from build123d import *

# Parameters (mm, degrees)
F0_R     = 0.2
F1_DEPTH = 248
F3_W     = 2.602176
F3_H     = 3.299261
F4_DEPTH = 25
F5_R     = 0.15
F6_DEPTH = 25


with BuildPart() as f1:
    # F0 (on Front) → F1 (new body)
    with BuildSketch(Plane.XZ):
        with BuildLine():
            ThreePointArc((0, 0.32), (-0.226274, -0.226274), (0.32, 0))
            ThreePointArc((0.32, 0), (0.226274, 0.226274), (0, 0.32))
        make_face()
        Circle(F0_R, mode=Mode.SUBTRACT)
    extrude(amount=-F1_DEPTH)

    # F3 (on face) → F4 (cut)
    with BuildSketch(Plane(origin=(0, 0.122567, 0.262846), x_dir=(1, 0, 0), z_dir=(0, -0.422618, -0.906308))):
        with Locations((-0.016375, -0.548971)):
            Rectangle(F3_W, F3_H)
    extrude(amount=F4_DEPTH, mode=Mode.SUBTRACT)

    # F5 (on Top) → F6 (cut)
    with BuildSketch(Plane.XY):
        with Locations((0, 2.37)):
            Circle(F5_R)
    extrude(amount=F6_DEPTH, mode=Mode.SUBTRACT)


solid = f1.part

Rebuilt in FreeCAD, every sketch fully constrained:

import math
import FreeCAD as App
import Part
import Sketcher

V = App.Vector
Q = App.Units.Quantity


def add_polygon(sketch, points):
    """Adds a closed chain of lines whose ends are joined by coincident constraints."""
    first, n = sketch.GeometryCount, len(points)
    for a, b in zip(points, points[1:] + points[:1]):
        sketch.addGeometry(Part.LineSegment(App.Vector(*a, 0), App.Vector(*b, 0)), False)
    for i in range(n):
        sketch.addConstraint(Sketcher.Constraint("Coincident", first + i, 2, first + (i + 1) % n, 1))

doc = App.newDocument("Part")
body = doc.addObject("PartDesign::Body", "Body")

# Sketch on XZ plane
sketch1 = doc.addObject("Sketcher::SketchObject", "Sketch")
body.addObject(sketch1)
sketch1.AttachmentSupport = (doc.XZ_Plane, [""])
sketch1.MapMode = "FlatFace"
sketch1.addGeometry([
    Part.ArcOfCircle(Part.Circle(V(0, 0, 0), V(0, 0, 1), 0.32), math.radians(90.000018), math.radians(359.999982)),
    Part.ArcOfCircle(Part.Circle(V(-0.000001, -0.000001, 0), V(0, 0, 1), 0.320001), math.radians(0.000104), math.radians(89.999896)),
    Part.Circle(V(0, 0, 0), V(0, 0, 1), 0.2),
], False)
sketch1.addConstraint([
    Sketcher.Constraint("Coincident", 0, 1, 1, 2),
    Sketcher.Constraint("Coincident", 1, 1, 0, 2),
    Sketcher.Constraint("Coincident", 0, 3, -1, 1),
    Sketcher.Constraint("Coincident", 2, 3, -1, 1),
    Sketcher.Constraint("Equal", 0, 1),
    Sketcher.Constraint("PointOnObject", 0, 1, -2),
    Sketcher.Constraint("PointOnObject", 1, 1, -1),
    Sketcher.Constraint("Diameter", 2, Q("0.4 mm")),
    Sketcher.Constraint("Radius", 0, Q("0.32 mm")),
])
pad1 = doc.addObject("PartDesign::Pad", "Pad")
body.addObject(pad1)
pad1.Profile = sketch1
pad1.Length = 248
pad1.Reversed = True

# Sketch on an angled plane
sketch2 = doc.addObject("Sketcher::SketchObject", "Sketch001")
body.addObject(sketch2)
sketch2.Placement = App.Placement(V(0, 0.122567, 0.262846), App.Rotation(V(1, 0, 0), V(0, -0.906307925, 0.422617965), V(0, -0.422617965, -0.906307925), "ZXY"))
add_polygon(sketch2, [(-1.317463, 1.100659), (-1.317463, -2.198601), (1.284713, -2.198601), (1.284713, 1.100659)])  # lines 0-3
sketch2.addConstraint([
    Sketcher.Constraint("Vertical", 0),
    Sketcher.Constraint("Horizontal", 1),
    Sketcher.Constraint("Vertical", 2),
    Sketcher.Constraint("Horizontal", 3),
    Sketcher.Constraint("DistanceY", 0, 2, 0, 1, Q("3.299261 mm")),
    Sketcher.Constraint("DistanceY", 0, 2, -1, 1, Q("2.198601 mm")),
    Sketcher.Constraint("DistanceX", 1, 1, 1, 2, Q("2.602176 mm")),
    Sketcher.Constraint("DistanceX", 0, 2, -1, 1, Q("1.317463 mm")),
])
pocket1 = doc.addObject("PartDesign::Pocket", "Pocket")
body.addObject(pocket1)
pocket1.Profile = sketch2
pocket1.Length = 25
pocket1.Reversed = True

# Sketch on XY plane
sketch3 = doc.addObject("Sketcher::SketchObject", "Sketch002")
body.addObject(sketch3)
sketch3.AttachmentSupport = (doc.XY_Plane, [""])
sketch3.MapMode = "FlatFace"
sketch3.addGeometry(Part.Circle(V(0, 2.37, 0), V(0, 0, 1), 0.15), False)
sketch3.addConstraint([
    Sketcher.Constraint("PointOnObject", 0, 3, -2),
    Sketcher.Constraint("Diameter", 0, Q("0.3 mm")),
    Sketcher.Constraint("DistanceY", -1, 1, 0, 3, Q("2.37 mm")),
])
pocket2 = doc.addObject("PartDesign::Pocket", "Pocket001")
body.addObject(pocket2)
pocket2.Profile = sketch3
pocket2.Length = 25
pocket2.Reversed = True

doc.recompute()
